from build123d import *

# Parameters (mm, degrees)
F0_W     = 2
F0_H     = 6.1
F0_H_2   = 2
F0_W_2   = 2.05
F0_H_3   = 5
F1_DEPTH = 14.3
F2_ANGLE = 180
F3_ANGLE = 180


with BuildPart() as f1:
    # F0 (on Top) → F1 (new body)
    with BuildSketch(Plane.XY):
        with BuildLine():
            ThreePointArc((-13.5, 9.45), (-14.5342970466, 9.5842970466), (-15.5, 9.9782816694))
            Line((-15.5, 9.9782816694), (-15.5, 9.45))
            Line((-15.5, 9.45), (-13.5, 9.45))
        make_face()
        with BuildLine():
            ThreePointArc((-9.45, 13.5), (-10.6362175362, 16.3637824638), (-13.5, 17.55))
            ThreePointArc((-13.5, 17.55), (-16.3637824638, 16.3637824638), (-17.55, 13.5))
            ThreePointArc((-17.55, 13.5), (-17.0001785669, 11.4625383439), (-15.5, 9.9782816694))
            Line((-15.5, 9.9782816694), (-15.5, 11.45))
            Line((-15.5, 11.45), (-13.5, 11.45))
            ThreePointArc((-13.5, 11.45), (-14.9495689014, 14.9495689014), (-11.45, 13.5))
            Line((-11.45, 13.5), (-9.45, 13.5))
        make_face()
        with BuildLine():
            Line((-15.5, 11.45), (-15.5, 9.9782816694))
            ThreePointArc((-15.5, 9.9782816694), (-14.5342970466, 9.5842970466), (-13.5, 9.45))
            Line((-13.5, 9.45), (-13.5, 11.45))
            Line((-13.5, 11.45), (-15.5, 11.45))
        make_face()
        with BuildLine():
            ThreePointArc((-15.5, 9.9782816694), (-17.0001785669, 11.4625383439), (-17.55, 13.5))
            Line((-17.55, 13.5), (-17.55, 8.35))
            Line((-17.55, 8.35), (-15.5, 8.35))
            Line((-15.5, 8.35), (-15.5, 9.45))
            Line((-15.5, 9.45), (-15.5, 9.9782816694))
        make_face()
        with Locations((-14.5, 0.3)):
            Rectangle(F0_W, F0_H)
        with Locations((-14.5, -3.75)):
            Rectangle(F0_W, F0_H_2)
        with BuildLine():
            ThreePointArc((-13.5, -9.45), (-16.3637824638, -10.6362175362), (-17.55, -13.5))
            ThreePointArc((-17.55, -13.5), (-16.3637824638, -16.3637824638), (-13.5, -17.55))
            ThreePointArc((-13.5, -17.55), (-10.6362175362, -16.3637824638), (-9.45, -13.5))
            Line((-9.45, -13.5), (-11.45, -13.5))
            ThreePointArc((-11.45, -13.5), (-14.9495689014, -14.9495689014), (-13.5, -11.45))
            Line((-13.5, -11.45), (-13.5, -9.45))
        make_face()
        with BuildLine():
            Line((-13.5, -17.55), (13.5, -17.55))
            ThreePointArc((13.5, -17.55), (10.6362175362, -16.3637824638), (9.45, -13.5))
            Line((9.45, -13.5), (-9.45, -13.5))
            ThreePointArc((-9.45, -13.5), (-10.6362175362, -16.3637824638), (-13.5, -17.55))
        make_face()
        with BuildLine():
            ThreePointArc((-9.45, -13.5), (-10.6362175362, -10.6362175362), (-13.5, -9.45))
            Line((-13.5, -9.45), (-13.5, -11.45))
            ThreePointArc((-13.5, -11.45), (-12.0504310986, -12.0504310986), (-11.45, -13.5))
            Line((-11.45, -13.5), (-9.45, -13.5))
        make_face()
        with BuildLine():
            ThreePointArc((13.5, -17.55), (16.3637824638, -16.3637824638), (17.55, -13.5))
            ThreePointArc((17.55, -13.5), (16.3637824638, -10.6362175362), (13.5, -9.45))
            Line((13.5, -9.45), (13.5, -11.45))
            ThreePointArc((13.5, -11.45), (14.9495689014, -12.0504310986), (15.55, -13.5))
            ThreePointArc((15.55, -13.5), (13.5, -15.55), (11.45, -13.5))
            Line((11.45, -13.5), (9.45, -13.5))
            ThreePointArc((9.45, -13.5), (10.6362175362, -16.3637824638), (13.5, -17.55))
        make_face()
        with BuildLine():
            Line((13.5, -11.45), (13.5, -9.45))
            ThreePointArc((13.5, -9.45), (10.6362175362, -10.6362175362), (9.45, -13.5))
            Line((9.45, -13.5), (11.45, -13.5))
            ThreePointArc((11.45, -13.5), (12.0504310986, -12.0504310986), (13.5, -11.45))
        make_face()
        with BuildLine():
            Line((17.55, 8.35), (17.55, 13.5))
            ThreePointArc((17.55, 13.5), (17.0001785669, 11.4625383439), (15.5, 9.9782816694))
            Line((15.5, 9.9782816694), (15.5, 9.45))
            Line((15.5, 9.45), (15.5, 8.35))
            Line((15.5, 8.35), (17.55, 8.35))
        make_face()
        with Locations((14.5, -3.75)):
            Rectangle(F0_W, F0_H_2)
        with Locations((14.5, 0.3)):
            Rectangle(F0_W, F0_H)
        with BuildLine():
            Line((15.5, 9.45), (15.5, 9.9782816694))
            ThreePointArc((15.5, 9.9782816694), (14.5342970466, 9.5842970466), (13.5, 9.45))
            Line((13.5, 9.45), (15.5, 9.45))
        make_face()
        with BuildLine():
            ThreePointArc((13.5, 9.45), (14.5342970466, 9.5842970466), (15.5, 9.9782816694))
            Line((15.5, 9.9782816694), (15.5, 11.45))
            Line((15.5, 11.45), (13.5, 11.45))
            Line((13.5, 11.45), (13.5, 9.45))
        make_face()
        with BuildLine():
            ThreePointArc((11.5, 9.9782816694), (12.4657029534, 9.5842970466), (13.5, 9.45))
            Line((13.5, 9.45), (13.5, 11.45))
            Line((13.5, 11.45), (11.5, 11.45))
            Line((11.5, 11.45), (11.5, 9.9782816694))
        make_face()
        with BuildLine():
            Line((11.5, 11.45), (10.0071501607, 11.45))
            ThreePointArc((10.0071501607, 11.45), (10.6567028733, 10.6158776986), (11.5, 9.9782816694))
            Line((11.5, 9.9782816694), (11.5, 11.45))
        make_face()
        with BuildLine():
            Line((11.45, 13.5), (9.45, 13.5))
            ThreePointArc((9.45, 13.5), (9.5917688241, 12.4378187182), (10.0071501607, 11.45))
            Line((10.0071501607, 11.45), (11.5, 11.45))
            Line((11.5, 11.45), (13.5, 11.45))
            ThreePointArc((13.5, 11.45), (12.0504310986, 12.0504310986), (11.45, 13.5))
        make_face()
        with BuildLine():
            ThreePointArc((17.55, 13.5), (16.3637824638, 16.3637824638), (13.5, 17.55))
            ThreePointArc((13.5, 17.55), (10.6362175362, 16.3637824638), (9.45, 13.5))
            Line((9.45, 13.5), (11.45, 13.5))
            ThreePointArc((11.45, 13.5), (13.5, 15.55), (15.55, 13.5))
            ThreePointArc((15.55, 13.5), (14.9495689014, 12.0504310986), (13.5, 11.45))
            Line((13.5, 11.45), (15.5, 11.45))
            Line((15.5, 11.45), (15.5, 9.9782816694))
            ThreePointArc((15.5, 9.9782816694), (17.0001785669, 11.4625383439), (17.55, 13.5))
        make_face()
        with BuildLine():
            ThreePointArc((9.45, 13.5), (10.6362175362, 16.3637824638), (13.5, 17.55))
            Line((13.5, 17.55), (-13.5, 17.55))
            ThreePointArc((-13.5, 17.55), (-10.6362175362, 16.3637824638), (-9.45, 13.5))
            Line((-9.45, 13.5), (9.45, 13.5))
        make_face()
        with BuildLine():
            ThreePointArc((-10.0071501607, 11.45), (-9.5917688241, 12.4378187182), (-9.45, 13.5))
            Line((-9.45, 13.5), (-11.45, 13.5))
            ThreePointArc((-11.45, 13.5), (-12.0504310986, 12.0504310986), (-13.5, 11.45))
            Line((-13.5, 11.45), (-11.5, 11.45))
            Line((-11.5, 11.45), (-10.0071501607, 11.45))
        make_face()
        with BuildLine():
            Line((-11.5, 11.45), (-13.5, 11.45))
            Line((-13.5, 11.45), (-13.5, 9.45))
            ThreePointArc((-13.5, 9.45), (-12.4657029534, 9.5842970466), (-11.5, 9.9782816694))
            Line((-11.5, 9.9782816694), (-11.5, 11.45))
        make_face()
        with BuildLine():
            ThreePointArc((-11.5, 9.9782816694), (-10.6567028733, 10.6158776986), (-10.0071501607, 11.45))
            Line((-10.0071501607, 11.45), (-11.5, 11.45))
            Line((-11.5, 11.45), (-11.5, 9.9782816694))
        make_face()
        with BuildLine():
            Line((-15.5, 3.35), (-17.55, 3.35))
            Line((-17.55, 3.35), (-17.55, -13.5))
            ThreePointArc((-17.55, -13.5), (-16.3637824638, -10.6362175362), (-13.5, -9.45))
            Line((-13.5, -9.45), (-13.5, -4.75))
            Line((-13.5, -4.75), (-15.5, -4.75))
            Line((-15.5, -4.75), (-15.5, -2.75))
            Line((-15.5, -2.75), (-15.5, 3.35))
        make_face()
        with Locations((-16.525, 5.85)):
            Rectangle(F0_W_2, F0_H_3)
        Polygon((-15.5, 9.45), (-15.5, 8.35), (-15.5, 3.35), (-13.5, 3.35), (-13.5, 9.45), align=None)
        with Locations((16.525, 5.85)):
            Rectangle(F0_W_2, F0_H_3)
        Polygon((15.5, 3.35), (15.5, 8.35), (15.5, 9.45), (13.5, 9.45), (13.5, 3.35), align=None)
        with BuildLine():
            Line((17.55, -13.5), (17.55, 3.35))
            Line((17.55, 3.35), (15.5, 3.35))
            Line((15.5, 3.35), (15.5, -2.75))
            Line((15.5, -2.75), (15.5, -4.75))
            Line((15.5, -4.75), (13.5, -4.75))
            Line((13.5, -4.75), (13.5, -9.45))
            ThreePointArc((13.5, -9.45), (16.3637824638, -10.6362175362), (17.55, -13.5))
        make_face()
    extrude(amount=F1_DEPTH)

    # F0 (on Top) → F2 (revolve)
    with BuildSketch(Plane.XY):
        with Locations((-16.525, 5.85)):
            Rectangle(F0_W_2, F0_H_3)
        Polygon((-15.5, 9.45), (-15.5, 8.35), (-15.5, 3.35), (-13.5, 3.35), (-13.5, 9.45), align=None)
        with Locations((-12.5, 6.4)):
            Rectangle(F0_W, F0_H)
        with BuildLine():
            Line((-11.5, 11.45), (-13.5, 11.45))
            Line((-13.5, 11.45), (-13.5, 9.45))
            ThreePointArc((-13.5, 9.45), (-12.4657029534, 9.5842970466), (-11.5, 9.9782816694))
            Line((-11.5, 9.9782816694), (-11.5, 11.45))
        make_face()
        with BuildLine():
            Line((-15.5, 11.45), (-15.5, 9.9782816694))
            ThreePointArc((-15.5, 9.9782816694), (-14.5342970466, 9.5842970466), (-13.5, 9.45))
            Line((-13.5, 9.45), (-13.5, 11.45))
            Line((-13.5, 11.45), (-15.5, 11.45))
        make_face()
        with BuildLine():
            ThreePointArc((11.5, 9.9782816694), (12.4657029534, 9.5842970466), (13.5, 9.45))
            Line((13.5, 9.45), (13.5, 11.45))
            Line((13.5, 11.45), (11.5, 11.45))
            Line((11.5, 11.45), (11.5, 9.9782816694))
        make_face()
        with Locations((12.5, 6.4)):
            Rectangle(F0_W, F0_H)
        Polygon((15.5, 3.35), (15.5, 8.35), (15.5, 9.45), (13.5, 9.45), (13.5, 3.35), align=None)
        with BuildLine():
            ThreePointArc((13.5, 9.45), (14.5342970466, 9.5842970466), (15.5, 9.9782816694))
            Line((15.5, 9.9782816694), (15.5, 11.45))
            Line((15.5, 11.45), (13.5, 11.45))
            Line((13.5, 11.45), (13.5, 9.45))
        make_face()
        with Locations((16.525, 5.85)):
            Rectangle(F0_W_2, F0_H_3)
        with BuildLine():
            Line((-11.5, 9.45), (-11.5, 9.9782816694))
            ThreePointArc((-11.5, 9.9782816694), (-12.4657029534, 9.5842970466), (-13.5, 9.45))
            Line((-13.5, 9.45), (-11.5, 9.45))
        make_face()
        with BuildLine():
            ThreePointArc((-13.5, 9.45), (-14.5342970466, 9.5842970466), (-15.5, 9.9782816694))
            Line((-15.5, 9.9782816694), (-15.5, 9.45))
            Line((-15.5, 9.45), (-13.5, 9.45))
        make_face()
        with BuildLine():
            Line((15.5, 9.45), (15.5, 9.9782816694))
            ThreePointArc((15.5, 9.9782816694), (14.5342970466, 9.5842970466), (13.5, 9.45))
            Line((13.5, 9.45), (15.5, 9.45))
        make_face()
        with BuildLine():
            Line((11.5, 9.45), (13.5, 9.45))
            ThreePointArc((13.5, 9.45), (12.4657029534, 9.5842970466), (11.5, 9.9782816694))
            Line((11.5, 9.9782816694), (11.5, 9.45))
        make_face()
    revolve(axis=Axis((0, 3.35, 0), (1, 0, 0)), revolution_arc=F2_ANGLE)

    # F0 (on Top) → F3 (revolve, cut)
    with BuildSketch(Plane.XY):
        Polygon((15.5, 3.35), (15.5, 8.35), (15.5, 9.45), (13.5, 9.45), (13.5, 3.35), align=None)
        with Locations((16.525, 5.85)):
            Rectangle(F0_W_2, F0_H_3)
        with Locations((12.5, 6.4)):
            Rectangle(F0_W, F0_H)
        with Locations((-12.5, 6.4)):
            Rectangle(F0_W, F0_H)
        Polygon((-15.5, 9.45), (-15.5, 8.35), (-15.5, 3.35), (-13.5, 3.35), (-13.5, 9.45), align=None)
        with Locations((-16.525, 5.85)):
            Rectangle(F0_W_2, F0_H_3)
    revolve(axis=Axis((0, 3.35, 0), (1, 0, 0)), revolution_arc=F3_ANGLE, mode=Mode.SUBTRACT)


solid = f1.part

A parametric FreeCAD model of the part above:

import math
import FreeCAD as App
import Part
import Sketcher

V = App.Vector

doc = App.newDocument("Part")
body = doc.addObject("PartDesign::Body", "Body")

# Sketch on XY plane
sketch1 = doc.addObject("Sketcher::SketchObject", "Sketch")
body.addObject(sketch1)
sketch1.AttachmentSupport = (doc.XY_Plane, [""])
sketch1.MapMode = "FlatFace"
sketch1.addGeometry([
    Part.ArcOfCircle(Part.Circle(V(13.5, 13.5, 0), V(0, 0, 1), 4), math.radians(0), math.radians(90)),  # 0
    Part.LineSegment(V(13.5, 17.6, 0), V(-13.5, 17.6, 0)),  # 1
    Part.ArcOfCircle(Part.Circle(V(-13.5, 13.5, 0), V(0, 0, 1), 4), math.radians(90), math.radians(180)),  # 2
    Part.LineSegment(V(-17.6, 13.5, 0), V(-17.6, -13.5, 0)),  # 3
    Part.ArcOfCircle(Part.Circle(V(-13.5, -13.5, 0), V(0, 0, 1), 4), math.radians(180), math.radians(270)),  # 4
    Part.LineSegment(V(-13.5, -17.6, 0), V(13.5, -17.6, 0)),  # 5
    Part.ArcOfCircle(Part.Circle(V(13.5, -13.5, 0), V(0, 0, 1), 4), math.radians(-90), math.radians(0)),  # 6
    Part.LineSegment(V(17.6, -13.5, 0), V(17.6, 13.5, 0)),  # 7
    Part.ArcOfCircle(Part.Circle(V(-13.5, -13.5, 0), V(0, 0, 1), 2), math.radians(0), math.radians(90)),  # 8
    Part.ArcOfCircle(Part.Circle(V(-13.5, -13.5, 0), V(0, 0, 1), 2), math.radians(90), math.radians(360)),  # 9
    Part.ArcOfCircle(Part.Circle(V(13.5, -13.5, 0), V(0, 0, 1), 2), math.radians(90), math.radians(180)),  # 10
    Part.ArcOfCircle(Part.Circle(V(13.5, -13.5, 0), V(0, 0, 1), 2), math.radians(0), math.radians(90)),  # 11
    Part.ArcOfCircle(Part.Circle(V(13.5, -13.5, 0), V(0, 0, 1), 2), math.radians(180), math.radians(360)),  # 12
    Part.ArcOfCircle(Part.Circle(V(13.5, -13.5, 0), V(0, 0, 1), 4), math.radians(90), math.radians(180)),  # 13
    Part.LineSegment(V(9.4, -13.5, 0), V(-9.4, -13.5, 0)),  # 14
    Part.ArcOfCircle(Part.Circle(V(-13.5, -13.5, 0), V(0, 0, 1), 4), math.radians(0), math.radians(90)),  # 15
    Part.LineSegment(V(-13.5, -9.4, 0), V(-13.5, 9.4, 0)),  # 16
    Part.ArcOfCircle(Part.Circle(V(-13.5, 13.5, 0), V(0, 0, 1), 4.1), math.radians(-90), math.radians(-60)),  # 17
    Part.ArcOfCircle(Part.Circle(V(-13.5, 13.5, 0), V(0, 0, 1), 4), math.radians(-60), math.radians(-30)),  # 18
    Part.ArcOfCircle(Part.Circle(V(-13.5, 13.5, 0), V(0, 0, 1), 4.1), math.radians(-30), math.radians(0)),  # 19
    Part.LineSegment(V(-9.4, 13.5, 0), V(9.4, 13.5, 0)),  # 20
    Part.ArcOfCircle(Part.Circle(V(13.5, 13.5, 0), V(0, 0, 1), 4.1), math.radians(180), math.radians(210)),  # 21
    Part.ArcOfCircle(Part.Circle(V(13.5, 13.5, 0), V(0, 0, 1), 4), math.radians(-150), math.radians(-120)),  # 22
    Part.ArcOfCircle(Part.Circle(V(13.5, 13.5, 0), V(0, 0, 1), 4.1), math.radians(-120), math.radians(-90)),  # 23
    Part.LineSegment(V(13.5, 9.4, 0), V(13.5, -9.4, 0)),  # 24
    Part.ArcOfCircle(Part.Circle(V(-13.5, 13.5, 0), V(0, 0, 1), 2), math.radians(-90), math.radians(0)),  # 25
    Part.ArcOfCircle(Part.Circle(V(-13.5, 13.5, 0), V(0, 0, 1), 2), math.radians(0), math.radians(270)),  # 26
    Part.ArcOfCircle(Part.Circle(V(13.5, 13.5, 0), V(0, 0, 1), 2), math.radians(-90), math.radians(0)),  # 27
    Part.ArcOfCircle(Part.Circle(V(13.5, 13.5, 0), V(0, 0, 1), 2), math.radians(180), math.radians(270)),  # 28
    Part.ArcOfCircle(Part.Circle(V(13.5, 13.5, 0), V(0, 0, 1), 2), math.radians(0), math.radians(180)),  # 29
], False)
sketch1.addConstraint([
    Sketcher.Constraint("Tangent", 0, 2, 1, 1),
    Sketcher.Constraint("Tangent", 1, 2, 2, 1),
    Sketcher.Constraint("Tangent", 2, 2, 3, 1),
    Sketcher.Constraint("Tangent", 3, 2, 4, 1),
    Sketcher.Constraint("Tangent", 4, 2, 5, 1),
    Sketcher.Constraint("Tangent", 5, 2, 6, 1),
    Sketcher.Constraint("Tangent", 6, 2, 7, 1),
    Sketcher.Constraint("Tangent", 7, 2, 0, 1),
    Sketcher.Constraint("Tangent", 8, 1, 9, 2),
    Sketcher.Constraint("Coincident", 9, 1, 8, 2),
    Sketcher.Constraint("Tangent", 10, 1, 11, 2),
    Sketcher.Constraint("Tangent", 11, 1, 12, 2),
    Sketcher.Constraint("Tangent", 12, 1, 10, 2),
    Sketcher.Constraint("Coincident", 13, 2, 14, 1),
    Sketcher.Constraint("Coincident", 14, 2, 15, 1),
    Sketcher.Constraint("Coincident", 15, 2, 16, 1),
    Sketcher.Constraint("Coincident", 16, 2, 17, 1),
    Sketcher.Constraint("Tangent", 17, 2, 18, 1),
    Sketcher.Constraint("Tangent", 18, 2, 19, 1),
    Sketcher.Constraint("Coincident", 19, 2, 20, 1),
    Sketcher.Constraint("Coincident", 20, 2, 21, 1),
    Sketcher.Constraint("Tangent", 21, 2, 22, 1),
    Sketcher.Constraint("Tangent", 22, 2, 23, 1),
    Sketcher.Constraint("Coincident", 23, 2, 24, 1),
    Sketcher.Constraint("Coincident", 24, 2, 13, 1),
    Sketcher.Constraint("Tangent", 25, 1, 26, 2),
    Sketcher.Constraint("Coincident", 26, 1, 25, 2),
    Sketcher.Constraint("Tangent", 27, 1, 28, 2),
    Sketcher.Constraint("Tangent", 28, 1, 29, 2),
    Sketcher.Constraint("Tangent", 29, 1, 27, 2),
    Sketcher.Constraint("Horizontal", 1),
    Sketcher.Constraint("Vertical", 3),
    Sketcher.Constraint("Horizontal", 5),
    Sketcher.Constraint("Vertical", 7),
    Sketcher.Constraint("Horizontal", 14),
    Sketcher.Constraint("Vertical", 16),
    Sketcher.Constraint("Horizontal", 20),
    Sketcher.Constraint("Vertical", 24),
    Sketcher.Constraint("Coincident", 8, 3, 4, 3),
    Sketcher.Constraint("Coincident", 10, 3, 6, 3),
    Sketcher.Constraint("Coincident", 13, 3, 6, 3),
    Sketcher.Constraint("Coincident", 15, 3, 4, 3),
    Sketcher.Constraint("Coincident", 17, 3, 2, 3),
    Sketcher.Constraint("Coincident", 19, 3, 2, 3),
    Sketcher.Constraint("Coincident", 21, 3, 0, 3),
    Sketcher.Constraint("Coincident", 23, 3, 0, 3),
    Sketcher.Constraint("Coincident", 25, 3, 2, 3),
    Sketcher.Constraint("Coincident", 27, 3, 0, 3),
    Sketcher.Constraint("Equal", 0, 2),
    Sketcher.Constraint("Equal", 2, 4),
    Sketcher.Constraint("Equal", 4, 6),
    Sketcher.Constraint("Equal", 9, 10),
    Sketcher.Constraint("Equal", 6, 13),
    Sketcher.Constraint("Equal", 13, 15),
    Sketcher.Constraint("Equal", 15, 17),
    Sketcher.Constraint("Equal", 19, 21),
    Sketcher.Constraint("Equal", 12, 25),
    Sketcher.Constraint("Equal", 26, 27),
    Sketcher.Constraint("Symmetric", 0, 3, 4, 3, -1, 1),
    Sketcher.Constraint("Horizontal", 6, 2, 8, 1),
    Sketcher.Constraint("Horizontal", 8, 1, 11, 1),
    Sketcher.Constraint("Horizontal", 11, 1, 12, 1),
    Sketcher.Constraint("Horizontal", 12, 1, 13, 2),
    Sketcher.Constraint("Horizontal", 7, 2, 19, 2),
    Sketcher.Constraint("Horizontal", 18, 2, 21, 2),
    Sketcher.Constraint("Horizontal", 17, 2, 22, 2),
    Sketcher.Constraint("Horizontal", 21, 2, 25, 1),
    Sketcher.Constraint("Horizontal", 20, 2, 26, 1),
    Sketcher.Constraint("Horizontal", 26, 1, 28, 1),
    Sketcher.Constraint("Horizontal", 28, 1, 29, 1),
    Sketcher.Constraint("Vertical", 4, 2, 9, 1),
    Sketcher.Constraint("Vertical", 5, 2, 10, 1),
    Sketcher.Constraint("Vertical", 9, 1, 15, 2),
    Sketcher.Constraint("Vertical", 10, 1, 23, 2),
    Sketcher.Constraint("Vertical", 16, 2, 25, 1),
    Sketcher.Constraint("Vertical", 24, 2, 27, 1),
    Sketcher.Constraint("Equal", 5, 3),
    Sketcher.Constraint("DistanceX", 1, 2, 1, 1, 27.0),
    Sketcher.Constraint("Radius", 0, 4.05),
    Sketcher.Constraint("Radius", 8, 2.05),
    Sketcher.Constraint("DistanceX", 16, 2, 17, 2, 2.0),
])
pad1 = doc.addObject("PartDesign::Pad", "Pad")
body.addObject(pad1)
pad1.Profile = sketch1
pad1.Length = 14.3

# Sketch on XY plane
sketch2 = doc.addObject("Sketcher::SketchObject", "Sketch001")
body.addObject(sketch2)
sketch2.AttachmentSupport = (doc.XY_Plane, [""])
sketch2.MapMode = "FlatFace"
sketch2.addGeometry([
    Part.LineSegment(V(-17.6, 8.3, 0), V(-17.6, 3.4, 0)),  # 0
    Part.LineSegment(V(-17.6, 3.4, 0), V(-11.5, 3.4, 0)),  # 1
    Part.LineSegment(V(-11.5, 3.4, 0), V(-11.5, 11.4, 0)),  # 2
    Part.LineSegment(V(-11.5, 11.4, 0), V(-15.5, 11.4, 0)),  # 3
    Part.LineSegment(V(-15.5, 11.4, 0), V(-15.5, 8.3, 0)),  # 4
    Part.LineSegment(V(-15.5, 8.3, 0), V(-17.6, 8.3, 0)),  # 5
    Part.LineSegment(V(15.5, 11.4, 0), V(11.5, 11.4, 0)),  # 6
    Part.LineSegment(V(11.5, 11.4, 0), V(11.5, 3.4, 0)),  # 7
    Part.LineSegment(V(11.5, 3.4, 0), V(17.6, 3.4, 0)),  # 8
    Part.LineSegment(V(17.6, 3.4, 0), V(17.6, 8.3, 0)),  # 9
    Part.LineSegment(V(17.6, 8.3, 0), V(15.5, 8.3, 0)),  # 10
    Part.LineSegment(V(15.5, 8.3, 0), V(15.5, 11.4, 0)),  # 11
], False)
sketch2.addGeometry(Part.LineSegment(V(-17.6, 3.4, 0), V(17.6, 3.4, 0)), True)  # axis
sketch2.addConstraint([
    Sketcher.Constraint("Coincident", 0, 2, 1, 1),
    Sketcher.Constraint("Coincident", 1, 2, 2, 1),
    Sketcher.Constraint("Coincident", 2, 2, 3, 1),
    Sketcher.Constraint("Coincident", 3, 2, 4, 1),
    Sketcher.Constraint("Coincident", 4, 2, 5, 1),
    Sketcher.Constraint("Coincident", 5, 2, 0, 1),
    Sketcher.Constraint("Coincident", 6, 2, 7, 1),
    Sketcher.Constraint("Coincident", 7, 2, 8, 1),
    Sketcher.Constraint("Coincident", 8, 2, 9, 1),
    Sketcher.Constraint("Coincident", 9, 2, 10, 1),
    Sketcher.Constraint("Coincident", 10, 2, 11, 1),
    Sketcher.Constraint("Coincident", 11, 2, 6, 1),
    Sketcher.Constraint("Vertical", 0),
    Sketcher.Constraint("Horizontal", 1),
    Sketcher.Constraint("Vertical", 2),
    Sketcher.Constraint("Horizontal", 3),
    Sketcher.Constraint("Vertical", 4),
    Sketcher.Constraint("Horizontal", 5),
    Sketcher.Constraint("Horizontal", 6),
    Sketcher.Constraint("Vertical", 7),
    Sketcher.Constraint("Horizontal", 8),
    Sketcher.Constraint("Vertical", 9),
    Sketcher.Constraint("Horizontal", 10),
    Sketcher.Constraint("Vertical", 11),
    Sketcher.Constraint("Horizontal", 12),
    Sketcher.Constraint("Coincident", 12, 1, 0, 2),
    Sketcher.Constraint("Coincident", 12, 2, 8, 2),
    Sketcher.Constraint("Symmetric", 2, 2, 6, 2, -2),
    Sketcher.Constraint("Symmetric", 5, 2, 9, 2, -2),
    Sketcher.Constraint("Equal", 3, 6),
    Sketcher.Constraint("DistanceX", 3, 2, 3, 1, 4.0),
    Sketcher.Constraint("DistanceY", 0, 2, 0, 1, 5.0),
    Sketcher.Constraint("DistanceX", 12, 1, 12, 2, 35.1),
    Sketcher.Constraint("DistanceY", 2, 1, 2, 2, 8.1),
    Sketcher.Constraint("DistanceX", 2, 2, 6, 2, 23.0),
    Sketcher.Constraint("DistanceY", -1, 1, 0, 2, 3.35),
])
revolution = doc.addObject("PartDesign::Revolution", "Revolution")
body.addObject(revolution)
revolution.Profile = sketch2
revolution.ReferenceAxis = (sketch2, ["Axis0"])
revolution.Angle = 180

# Sketch on XY plane
sketch3 = doc.addObject("Sketcher::SketchObject", "Sketch002")
body.addObject(sketch3)
sketch3.AttachmentSupport = (doc.XY_Plane, [""])
sketch3.MapMode = "FlatFace"
sketch3.addGeometry([
    Part.LineSegment(V(17.6, 3.4, 0), V(17.6, 8.3, 0)),  # 0
    Part.LineSegment(V(17.6, 8.3, 0), V(15.5, 8.3, 0)),  # 1
    Part.LineSegment(V(15.5, 8.3, 0), V(15.5, 9.4, 0)),  # 2
    Part.LineSegment(V(15.5, 9.4, 0), V(11.5, 9.4, 0)),  # 3
    Part.LineSegment(V(11.5, 9.4, 0), V(11.5, 3.4, 0)),  # 4
    Part.LineSegment(V(11.5, 3.4, 0), V(17.6, 3.4, 0)),  # 5
    Part.LineSegment(V(-11.5, 3.4, 0), V(-11.5, 9.4, 0)),  # 6
    Part.LineSegment(V(-11.5, 9.4, 0), V(-15.5, 9.4, 0)),  # 7
    Part.LineSegment(V(-15.5, 9.4, 0), V(-15.5, 8.3, 0)),  # 8
    Part.LineSegment(V(-15.5, 8.3, 0), V(-17.6, 8.3, 0)),  # 9
    Part.LineSegment(V(-17.6, 8.3, 0), V(-17.6, 3.4, 0)),  # 10
    Part.LineSegment(V(-17.6, 3.4, 0), V(-11.5, 3.4, 0)),  # 11
], False)
sketch3.addGeometry(Part.LineSegment(V(-17.6, 3.4, 0), V(17.6, 3.4, 0)), True)  # axis
sketch3.addConstraint([
    Sketcher.Constraint("Coincident", 0, 2, 1, 1),
    Sketcher.Constraint("Coincident", 1, 2, 2, 1),
    Sketcher.Constraint("Coincident", 2, 2, 3, 1),
    Sketcher.Constraint("Coincident", 3, 2, 4, 1),
    Sketcher.Constraint("Coincident", 4, 2, 5, 1),
    Sketcher.Constraint("Coincident", 5, 2, 0, 1),
    Sketcher.Constraint("Coincident", 6, 2, 7, 1),
    Sketcher.Constraint("Coincident", 7, 2, 8, 1),
    Sketcher.Constraint("Coincident", 8, 2, 9, 1),
    Sketcher.Constraint("Coincident", 9, 2, 10, 1),
    Sketcher.Constraint("Coincident", 10, 2, 11, 1),
    Sketcher.Constraint("Coincident", 11, 2, 6, 1),
    Sketcher.Constraint("Vertical", 0),
    Sketcher.Constraint("Horizontal", 1),
    Sketcher.Constraint("Vertical", 2),
    Sketcher.Constraint("Horizontal", 3),
    Sketcher.Constraint("Vertical", 4),
    Sketcher.Constraint("Horizontal", 5),
    Sketcher.Constraint("Vertical", 6),
    Sketcher.Constraint("Horizontal", 7),
    Sketcher.Constraint("Vertical", 8),
    Sketcher.Constraint("Horizontal", 9),
    Sketcher.Constraint("Vertical", 10),
    Sketcher.Constraint("Horizontal", 11),
    Sketcher.Constraint("Horizontal", 12),
    Sketcher.Constraint("Coincident", 12, 1, 10, 2),
    Sketcher.Constraint("Coincident", 12, 2, 5, 2),
    Sketcher.Constraint("Symmetric", 3, 2, 6, 2, -2),
    Sketcher.Constraint("Symmetric", 1, 2, 8, 2, -2),
    Sketcher.Constraint("Equal", 1, 9),
    Sketcher.Constraint("DistanceX", 3, 2, 3, 1, 4.0),
    Sketcher.Constraint("DistanceY", 0, 1, 0, 2, 5.0),
    Sketcher.Constraint("DistanceX", 12, 1, 12, 2, 35.1),
    Sketcher.Constraint("DistanceY", 2, 1, 2, 2, 1.1),
    Sketcher.Constraint("DistanceX", 6, 2, 3, 2, 23.0),
    Sketcher.Constraint("DistanceY", -1, 1, 0, 2, 8.35),
])
groove = doc.addObject("PartDesign::Groove", "Groove")
body.addObject(groove)
groove.Profile = sketch3
groove.ReferenceAxis = (sketch3, ["Axis0"])
groove.Angle = 180

doc.recompute()
